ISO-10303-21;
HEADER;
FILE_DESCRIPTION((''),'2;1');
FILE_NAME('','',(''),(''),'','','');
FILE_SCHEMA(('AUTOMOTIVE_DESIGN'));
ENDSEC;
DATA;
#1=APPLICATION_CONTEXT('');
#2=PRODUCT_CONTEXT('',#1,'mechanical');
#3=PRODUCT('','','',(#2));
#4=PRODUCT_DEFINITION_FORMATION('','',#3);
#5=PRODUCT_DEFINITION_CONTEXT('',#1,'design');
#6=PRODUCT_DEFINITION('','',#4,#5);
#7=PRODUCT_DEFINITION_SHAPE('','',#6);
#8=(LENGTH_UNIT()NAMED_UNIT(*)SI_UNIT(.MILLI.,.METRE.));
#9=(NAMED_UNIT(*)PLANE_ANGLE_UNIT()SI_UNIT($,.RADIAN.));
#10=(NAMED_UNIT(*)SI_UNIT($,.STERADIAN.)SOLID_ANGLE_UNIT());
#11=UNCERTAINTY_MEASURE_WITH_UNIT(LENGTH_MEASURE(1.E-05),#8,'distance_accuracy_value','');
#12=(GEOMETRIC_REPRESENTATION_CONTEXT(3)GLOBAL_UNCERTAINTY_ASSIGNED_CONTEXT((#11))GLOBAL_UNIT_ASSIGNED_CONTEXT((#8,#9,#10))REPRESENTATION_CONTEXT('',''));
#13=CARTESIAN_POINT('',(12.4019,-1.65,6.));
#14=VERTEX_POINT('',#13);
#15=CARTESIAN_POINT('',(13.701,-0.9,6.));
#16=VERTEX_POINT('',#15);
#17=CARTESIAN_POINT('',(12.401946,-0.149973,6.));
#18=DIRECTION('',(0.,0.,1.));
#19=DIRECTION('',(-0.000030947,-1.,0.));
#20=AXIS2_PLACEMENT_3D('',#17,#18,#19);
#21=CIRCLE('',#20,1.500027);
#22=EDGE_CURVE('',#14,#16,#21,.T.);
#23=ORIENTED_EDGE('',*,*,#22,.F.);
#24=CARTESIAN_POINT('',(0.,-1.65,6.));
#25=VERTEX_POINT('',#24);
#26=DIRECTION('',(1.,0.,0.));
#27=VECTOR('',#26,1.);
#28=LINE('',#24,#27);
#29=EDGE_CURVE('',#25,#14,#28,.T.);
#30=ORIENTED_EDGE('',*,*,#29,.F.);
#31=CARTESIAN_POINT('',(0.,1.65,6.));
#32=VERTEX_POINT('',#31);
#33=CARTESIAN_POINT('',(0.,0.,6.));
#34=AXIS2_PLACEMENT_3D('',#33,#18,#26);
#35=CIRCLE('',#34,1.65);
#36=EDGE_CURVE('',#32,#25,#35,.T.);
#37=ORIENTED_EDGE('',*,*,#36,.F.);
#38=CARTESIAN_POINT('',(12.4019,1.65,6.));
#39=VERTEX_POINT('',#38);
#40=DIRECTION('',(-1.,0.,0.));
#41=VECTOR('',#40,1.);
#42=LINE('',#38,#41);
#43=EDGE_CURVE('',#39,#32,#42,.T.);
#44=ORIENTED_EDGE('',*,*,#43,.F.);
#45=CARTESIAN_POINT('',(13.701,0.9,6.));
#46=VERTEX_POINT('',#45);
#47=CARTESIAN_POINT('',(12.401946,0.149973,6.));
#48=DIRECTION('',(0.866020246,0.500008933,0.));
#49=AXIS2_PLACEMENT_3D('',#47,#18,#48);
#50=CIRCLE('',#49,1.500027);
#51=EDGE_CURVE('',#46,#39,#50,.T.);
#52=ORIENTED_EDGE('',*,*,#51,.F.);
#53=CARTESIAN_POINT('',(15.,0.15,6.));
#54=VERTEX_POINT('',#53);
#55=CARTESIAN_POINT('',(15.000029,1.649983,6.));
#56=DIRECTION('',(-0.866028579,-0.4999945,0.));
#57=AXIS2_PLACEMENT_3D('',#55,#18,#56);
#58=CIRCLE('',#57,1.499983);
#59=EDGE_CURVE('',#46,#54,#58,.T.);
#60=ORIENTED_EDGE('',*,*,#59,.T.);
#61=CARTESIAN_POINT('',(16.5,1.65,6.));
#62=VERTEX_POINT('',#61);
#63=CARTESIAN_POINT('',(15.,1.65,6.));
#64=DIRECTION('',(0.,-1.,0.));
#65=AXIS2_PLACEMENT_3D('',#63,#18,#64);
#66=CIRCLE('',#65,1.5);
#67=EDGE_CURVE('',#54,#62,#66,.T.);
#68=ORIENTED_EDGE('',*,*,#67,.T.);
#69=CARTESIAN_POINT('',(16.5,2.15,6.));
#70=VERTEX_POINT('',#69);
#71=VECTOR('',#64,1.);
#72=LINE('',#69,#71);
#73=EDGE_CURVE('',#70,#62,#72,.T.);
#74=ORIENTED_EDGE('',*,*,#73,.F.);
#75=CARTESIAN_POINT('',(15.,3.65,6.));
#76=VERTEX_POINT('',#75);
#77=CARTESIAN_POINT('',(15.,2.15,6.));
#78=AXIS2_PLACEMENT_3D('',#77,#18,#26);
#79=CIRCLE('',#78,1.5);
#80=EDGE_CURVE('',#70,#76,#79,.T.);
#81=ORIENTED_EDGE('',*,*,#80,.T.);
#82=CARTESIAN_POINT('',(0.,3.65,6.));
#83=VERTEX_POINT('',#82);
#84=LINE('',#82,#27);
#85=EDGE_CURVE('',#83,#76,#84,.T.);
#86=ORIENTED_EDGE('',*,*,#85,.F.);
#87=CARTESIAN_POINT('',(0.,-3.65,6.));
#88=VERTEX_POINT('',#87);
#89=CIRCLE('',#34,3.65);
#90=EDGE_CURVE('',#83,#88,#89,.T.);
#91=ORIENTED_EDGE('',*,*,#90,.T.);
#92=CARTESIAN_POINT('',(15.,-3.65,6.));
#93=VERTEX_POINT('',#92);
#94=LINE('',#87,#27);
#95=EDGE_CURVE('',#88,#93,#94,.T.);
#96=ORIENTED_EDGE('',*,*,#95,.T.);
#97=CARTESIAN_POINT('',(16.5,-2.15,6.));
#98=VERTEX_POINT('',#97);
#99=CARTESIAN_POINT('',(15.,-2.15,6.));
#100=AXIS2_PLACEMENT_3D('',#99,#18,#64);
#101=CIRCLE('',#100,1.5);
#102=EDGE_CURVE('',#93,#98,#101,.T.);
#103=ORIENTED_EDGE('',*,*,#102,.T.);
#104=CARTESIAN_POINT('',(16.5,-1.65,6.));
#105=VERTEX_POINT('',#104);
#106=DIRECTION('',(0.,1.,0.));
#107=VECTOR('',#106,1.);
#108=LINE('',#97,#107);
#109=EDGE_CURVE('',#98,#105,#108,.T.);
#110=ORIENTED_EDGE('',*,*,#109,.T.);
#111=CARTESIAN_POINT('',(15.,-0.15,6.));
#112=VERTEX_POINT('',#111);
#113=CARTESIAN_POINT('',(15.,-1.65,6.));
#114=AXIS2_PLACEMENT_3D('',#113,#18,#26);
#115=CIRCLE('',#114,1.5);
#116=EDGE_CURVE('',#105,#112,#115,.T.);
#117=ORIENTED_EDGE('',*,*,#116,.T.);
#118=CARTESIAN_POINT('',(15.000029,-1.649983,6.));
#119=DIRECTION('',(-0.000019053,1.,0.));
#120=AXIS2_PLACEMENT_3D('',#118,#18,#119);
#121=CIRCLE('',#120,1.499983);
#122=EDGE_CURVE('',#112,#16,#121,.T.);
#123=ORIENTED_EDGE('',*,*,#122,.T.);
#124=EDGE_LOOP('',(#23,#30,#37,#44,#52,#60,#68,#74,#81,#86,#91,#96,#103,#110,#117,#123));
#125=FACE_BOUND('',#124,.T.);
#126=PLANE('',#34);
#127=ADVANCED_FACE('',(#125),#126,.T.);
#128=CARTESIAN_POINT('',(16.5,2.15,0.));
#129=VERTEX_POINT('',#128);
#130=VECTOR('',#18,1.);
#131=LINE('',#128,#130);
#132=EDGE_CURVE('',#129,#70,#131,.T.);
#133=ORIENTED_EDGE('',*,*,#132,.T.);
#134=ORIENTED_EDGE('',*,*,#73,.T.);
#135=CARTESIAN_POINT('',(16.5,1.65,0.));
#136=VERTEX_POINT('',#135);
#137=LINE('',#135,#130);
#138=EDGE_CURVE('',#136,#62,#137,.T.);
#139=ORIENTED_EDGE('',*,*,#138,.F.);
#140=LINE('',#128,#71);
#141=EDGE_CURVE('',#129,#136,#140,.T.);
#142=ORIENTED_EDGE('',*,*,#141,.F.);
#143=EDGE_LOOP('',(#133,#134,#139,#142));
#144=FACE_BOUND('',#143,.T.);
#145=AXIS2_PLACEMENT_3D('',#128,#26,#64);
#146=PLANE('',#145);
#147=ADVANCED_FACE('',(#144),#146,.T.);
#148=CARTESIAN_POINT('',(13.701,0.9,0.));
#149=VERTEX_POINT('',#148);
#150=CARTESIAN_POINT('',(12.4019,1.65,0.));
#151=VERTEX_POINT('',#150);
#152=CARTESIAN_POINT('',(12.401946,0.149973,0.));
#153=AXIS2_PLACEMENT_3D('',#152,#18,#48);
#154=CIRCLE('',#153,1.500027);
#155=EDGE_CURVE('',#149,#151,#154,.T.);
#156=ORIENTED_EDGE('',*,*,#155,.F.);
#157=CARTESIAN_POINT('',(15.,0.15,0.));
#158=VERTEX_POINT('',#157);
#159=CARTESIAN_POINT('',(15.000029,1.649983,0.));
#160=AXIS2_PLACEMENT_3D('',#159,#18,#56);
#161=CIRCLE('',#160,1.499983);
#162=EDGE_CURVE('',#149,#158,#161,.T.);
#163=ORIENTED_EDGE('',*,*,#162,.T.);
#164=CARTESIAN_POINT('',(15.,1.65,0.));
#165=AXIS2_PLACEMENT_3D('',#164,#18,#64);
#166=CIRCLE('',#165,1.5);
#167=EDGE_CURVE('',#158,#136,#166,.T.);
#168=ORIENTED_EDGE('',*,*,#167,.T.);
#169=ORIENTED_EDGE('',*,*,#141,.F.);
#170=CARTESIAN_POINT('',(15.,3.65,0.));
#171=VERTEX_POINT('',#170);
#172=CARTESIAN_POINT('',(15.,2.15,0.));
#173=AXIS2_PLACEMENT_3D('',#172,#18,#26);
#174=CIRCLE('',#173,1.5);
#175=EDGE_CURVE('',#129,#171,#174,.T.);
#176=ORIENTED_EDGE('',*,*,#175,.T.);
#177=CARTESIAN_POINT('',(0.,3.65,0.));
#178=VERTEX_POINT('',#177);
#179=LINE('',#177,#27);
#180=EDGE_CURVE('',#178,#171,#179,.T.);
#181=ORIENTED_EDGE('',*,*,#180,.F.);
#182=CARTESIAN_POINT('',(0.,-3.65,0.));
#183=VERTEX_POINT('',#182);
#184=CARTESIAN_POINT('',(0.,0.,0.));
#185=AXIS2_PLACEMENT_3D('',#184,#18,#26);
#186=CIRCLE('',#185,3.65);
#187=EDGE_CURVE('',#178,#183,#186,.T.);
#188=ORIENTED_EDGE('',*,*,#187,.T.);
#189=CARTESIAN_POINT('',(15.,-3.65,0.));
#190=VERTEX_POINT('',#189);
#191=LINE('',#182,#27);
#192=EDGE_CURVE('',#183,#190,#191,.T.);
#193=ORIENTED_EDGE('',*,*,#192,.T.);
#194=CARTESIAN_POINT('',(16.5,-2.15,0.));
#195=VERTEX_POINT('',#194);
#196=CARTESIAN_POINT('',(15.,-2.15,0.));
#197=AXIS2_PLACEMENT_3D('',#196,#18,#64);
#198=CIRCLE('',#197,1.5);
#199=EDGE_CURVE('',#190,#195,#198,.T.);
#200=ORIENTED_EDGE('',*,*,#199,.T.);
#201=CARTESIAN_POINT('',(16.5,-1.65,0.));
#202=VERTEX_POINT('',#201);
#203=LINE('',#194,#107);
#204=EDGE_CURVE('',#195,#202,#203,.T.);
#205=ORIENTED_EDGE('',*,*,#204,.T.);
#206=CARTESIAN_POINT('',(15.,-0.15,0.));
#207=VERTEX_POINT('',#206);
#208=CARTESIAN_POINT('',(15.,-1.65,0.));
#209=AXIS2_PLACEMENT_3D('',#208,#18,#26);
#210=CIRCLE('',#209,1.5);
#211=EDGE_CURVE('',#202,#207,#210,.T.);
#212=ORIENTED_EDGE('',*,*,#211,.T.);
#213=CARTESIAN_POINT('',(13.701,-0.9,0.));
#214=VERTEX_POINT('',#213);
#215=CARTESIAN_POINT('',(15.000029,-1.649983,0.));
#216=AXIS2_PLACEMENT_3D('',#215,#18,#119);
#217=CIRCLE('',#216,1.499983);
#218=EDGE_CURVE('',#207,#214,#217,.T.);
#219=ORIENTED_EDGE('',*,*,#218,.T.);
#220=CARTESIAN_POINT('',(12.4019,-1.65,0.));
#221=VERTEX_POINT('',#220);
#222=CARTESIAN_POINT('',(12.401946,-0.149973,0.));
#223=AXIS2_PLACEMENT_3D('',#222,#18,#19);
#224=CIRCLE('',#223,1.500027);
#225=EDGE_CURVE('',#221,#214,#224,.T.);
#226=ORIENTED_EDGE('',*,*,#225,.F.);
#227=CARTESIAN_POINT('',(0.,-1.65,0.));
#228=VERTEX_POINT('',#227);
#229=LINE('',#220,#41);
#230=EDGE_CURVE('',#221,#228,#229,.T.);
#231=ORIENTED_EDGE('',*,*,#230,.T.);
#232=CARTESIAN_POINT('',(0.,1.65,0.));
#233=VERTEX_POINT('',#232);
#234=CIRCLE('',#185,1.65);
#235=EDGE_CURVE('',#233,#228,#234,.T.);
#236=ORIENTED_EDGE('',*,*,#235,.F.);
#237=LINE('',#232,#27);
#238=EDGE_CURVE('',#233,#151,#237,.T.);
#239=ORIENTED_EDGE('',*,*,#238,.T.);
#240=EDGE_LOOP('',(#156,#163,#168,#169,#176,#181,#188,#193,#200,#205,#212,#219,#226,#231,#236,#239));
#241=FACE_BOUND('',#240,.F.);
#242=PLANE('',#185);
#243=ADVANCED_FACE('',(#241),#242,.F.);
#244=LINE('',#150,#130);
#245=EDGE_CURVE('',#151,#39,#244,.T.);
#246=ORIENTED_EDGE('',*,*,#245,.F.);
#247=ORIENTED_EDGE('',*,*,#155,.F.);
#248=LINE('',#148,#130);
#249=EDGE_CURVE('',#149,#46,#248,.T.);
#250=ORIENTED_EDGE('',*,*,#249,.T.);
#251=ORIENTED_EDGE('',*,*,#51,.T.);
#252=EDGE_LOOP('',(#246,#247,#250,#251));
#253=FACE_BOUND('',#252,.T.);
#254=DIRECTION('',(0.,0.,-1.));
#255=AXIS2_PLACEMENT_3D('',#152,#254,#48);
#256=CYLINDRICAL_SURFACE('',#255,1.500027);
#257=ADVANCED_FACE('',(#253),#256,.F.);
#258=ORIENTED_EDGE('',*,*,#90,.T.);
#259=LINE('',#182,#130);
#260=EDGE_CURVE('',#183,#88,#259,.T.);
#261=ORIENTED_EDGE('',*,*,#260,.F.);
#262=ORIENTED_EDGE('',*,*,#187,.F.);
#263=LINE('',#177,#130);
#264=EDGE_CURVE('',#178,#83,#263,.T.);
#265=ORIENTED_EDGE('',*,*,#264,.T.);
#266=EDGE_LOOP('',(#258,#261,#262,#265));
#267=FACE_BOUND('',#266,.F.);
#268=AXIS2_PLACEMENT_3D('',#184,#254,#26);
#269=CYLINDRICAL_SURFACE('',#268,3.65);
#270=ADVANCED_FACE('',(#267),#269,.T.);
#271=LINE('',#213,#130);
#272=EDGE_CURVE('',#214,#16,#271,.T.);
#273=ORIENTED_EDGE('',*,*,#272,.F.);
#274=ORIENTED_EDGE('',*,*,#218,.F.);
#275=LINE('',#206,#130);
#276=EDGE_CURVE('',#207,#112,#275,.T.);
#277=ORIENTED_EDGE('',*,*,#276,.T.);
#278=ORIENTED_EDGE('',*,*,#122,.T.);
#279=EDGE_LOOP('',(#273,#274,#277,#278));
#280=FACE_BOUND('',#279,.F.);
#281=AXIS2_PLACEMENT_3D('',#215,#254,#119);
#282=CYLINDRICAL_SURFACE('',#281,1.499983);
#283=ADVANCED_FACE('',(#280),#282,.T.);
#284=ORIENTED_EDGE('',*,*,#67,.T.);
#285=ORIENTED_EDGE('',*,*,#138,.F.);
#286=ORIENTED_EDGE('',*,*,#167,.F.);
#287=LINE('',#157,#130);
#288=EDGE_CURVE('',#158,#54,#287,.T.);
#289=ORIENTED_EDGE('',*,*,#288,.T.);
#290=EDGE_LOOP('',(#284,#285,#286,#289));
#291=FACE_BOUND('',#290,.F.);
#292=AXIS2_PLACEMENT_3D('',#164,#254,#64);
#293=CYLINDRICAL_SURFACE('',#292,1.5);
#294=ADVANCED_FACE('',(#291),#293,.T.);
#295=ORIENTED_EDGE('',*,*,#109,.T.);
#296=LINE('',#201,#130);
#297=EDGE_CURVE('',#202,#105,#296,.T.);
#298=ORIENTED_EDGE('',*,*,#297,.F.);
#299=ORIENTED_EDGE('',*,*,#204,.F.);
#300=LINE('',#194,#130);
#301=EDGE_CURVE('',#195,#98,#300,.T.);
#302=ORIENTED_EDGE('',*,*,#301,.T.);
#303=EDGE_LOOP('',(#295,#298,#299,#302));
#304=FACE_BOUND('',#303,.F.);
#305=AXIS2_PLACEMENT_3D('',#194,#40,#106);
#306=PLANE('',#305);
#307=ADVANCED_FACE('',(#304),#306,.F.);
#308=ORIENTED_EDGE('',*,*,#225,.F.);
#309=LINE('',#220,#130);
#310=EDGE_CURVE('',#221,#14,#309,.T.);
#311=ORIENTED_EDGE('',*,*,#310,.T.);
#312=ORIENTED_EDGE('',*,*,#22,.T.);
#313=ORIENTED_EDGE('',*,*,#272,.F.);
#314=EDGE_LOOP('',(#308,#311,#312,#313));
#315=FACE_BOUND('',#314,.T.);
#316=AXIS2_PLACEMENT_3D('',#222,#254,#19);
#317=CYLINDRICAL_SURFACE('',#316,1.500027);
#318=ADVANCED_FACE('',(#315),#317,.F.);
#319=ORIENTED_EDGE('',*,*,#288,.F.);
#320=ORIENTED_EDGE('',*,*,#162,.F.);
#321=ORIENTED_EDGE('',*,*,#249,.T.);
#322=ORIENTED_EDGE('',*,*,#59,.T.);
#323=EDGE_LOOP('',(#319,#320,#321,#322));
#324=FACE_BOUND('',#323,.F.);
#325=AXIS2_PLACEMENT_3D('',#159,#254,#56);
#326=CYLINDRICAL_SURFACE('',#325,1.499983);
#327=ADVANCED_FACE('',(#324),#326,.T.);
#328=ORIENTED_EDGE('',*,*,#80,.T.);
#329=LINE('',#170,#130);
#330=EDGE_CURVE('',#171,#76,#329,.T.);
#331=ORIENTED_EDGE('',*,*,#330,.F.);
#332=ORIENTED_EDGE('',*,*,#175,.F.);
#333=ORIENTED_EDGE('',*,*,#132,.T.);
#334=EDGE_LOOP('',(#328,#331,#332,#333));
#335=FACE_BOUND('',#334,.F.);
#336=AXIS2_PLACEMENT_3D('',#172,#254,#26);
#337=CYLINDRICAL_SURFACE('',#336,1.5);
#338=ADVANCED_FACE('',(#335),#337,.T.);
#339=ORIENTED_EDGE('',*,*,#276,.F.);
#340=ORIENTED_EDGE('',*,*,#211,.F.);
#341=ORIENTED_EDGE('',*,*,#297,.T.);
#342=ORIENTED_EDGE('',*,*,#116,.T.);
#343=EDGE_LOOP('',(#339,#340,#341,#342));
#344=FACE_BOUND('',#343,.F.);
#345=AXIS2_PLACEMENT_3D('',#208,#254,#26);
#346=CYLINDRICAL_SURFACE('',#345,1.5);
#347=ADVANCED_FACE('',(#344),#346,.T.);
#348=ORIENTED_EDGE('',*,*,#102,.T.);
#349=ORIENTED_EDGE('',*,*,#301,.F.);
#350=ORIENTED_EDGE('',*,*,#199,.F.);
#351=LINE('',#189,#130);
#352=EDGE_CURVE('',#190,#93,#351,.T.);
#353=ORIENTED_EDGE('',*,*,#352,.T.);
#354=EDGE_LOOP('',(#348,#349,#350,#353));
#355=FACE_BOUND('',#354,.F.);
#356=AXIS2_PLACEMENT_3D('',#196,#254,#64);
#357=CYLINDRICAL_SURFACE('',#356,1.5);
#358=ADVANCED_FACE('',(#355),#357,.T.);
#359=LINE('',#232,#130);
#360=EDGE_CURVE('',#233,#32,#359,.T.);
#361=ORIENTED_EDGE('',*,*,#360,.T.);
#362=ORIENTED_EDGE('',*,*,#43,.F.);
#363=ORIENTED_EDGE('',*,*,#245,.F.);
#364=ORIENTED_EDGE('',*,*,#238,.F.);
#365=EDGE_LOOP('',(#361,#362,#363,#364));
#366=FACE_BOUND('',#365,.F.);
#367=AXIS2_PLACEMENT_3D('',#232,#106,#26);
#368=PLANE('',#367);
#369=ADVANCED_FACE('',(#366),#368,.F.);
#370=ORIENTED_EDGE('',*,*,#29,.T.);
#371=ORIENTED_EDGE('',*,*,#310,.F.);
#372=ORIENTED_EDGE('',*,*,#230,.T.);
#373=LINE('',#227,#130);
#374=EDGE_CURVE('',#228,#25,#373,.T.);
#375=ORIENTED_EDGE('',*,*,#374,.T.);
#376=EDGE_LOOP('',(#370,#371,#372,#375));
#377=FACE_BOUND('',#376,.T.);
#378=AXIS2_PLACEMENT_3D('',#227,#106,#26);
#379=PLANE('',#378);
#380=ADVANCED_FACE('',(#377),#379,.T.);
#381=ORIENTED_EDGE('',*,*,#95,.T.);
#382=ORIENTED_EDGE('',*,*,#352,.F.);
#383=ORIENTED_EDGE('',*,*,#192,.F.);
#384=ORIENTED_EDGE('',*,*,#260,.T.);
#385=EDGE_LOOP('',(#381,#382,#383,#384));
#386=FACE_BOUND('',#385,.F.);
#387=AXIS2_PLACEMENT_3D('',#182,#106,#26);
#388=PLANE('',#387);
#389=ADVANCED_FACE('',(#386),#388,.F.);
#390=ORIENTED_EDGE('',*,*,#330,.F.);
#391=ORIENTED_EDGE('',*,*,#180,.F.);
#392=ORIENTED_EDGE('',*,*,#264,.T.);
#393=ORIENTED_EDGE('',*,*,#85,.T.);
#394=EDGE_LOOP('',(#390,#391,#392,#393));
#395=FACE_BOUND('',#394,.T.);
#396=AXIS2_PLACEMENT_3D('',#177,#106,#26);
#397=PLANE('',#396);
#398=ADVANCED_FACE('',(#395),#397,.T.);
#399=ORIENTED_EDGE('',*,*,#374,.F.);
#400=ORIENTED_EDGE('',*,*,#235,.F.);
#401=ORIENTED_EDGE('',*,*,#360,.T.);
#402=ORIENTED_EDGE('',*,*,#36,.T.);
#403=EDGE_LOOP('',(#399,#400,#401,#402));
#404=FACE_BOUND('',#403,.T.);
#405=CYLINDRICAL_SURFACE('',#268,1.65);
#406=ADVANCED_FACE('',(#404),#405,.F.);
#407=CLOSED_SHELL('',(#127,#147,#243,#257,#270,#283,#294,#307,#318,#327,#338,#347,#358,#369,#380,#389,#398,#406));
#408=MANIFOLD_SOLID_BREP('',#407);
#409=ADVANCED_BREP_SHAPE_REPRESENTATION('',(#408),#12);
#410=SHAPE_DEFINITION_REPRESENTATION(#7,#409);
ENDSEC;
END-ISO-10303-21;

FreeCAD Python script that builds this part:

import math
import FreeCAD as App
import Part
import Sketcher

V = App.Vector

doc = App.newDocument("Part")
params = doc.addObject("Spreadsheet::Sheet", "Params")
for row, (alias, value) in enumerate([
    ("sketch1_radius", "1.5 mm"),
    ("sketch1_radius2", "1.65 mm"),
    ("sketch1_radius3", "3.65 mm"),
    ("pad1_length", "6 mm"),
], start=1):
    params.set(f"A{row}", alias)
    params.set(f"B{row}", "=" + value)
    params.setAlias(f"B{row}", alias)

body = doc.addObject("PartDesign::Body", "Body")

sketch1 = body.newObject("Sketcher::SketchObject", "Sketch")
sketch1.AttachmentSupport = (doc.getObject("XY_Plane"), [""])
sketch1.MapMode = "FlatFace"
sketch1.addGeometry(Part.ArcOfCircle(Part.Circle(V(0, 0, 0), V(0, 0, 1), 1.6), math.radians(90), math.radians(270)), False)
sketch1.addGeometry(Part.LineSegment(V(0, 1.6, 0), V(12.4, 1.6, 0)), False)
sketch1.addGeometry(Part.ArcOfCircle(Part.Circle(V(12.4, 0.1, 0), V(0, 0, 1), 1.5), math.radians(30), math.radians(90)), False)
sketch1.addGeometry(Part.ArcOfCircle(Part.Circle(V(15, 1.6, 0), V(0, 0, 1), 1.5), math.radians(-150), math.radians(-90)), False)
sketch1.addGeometry(Part.ArcOfCircle(Part.Circle(V(15, 1.6, 0), V(0, 0, 1), 1.5), math.radians(-90), math.radians(0)), False)
sketch1.addGeometry(Part.LineSegment(V(16.5, 1.6, 0), V(16.5, 2.1, 0)), False)
sketch1.addGeometry(Part.ArcOfCircle(Part.Circle(V(15, 2.1, 0), V(0, 0, 1), 1.5), math.radians(0), math.radians(90)), False)
sketch1.addGeometry(Part.LineSegment(V(15, 3.6, 0), V(0, 3.6, 0)), False)
sketch1.addGeometry(Part.ArcOfCircle(Part.Circle(V(0, 0, 0), V(0, 0, 1), 3.6), math.radians(90), math.radians(270)), False)
sketch1.addGeometry(Part.LineSegment(V(0, -3.6, 0), V(15, -3.6, 0)), False)
sketch1.addGeometry(Part.ArcOfCircle(Part.Circle(V(15, -2.1, 0), V(0, 0, 1), 1.5), math.radians(-90), math.radians(0)), False)
sketch1.addGeometry(Part.LineSegment(V(16.5, -2.1, 0), V(16.5, -1.6, 0)), False)
sketch1.addGeometry(Part.ArcOfCircle(Part.Circle(V(15, -1.6, 0), V(0, 0, 1), 1.5), math.radians(0), math.radians(90)), False)
sketch1.addGeometry(Part.ArcOfCircle(Part.Circle(V(15, -1.6, 0), V(0, 0, 1), 1.5), math.radians(90), math.radians(150)), False)
sketch1.addGeometry(Part.ArcOfCircle(Part.Circle(V(12.4, -0.1, 0), V(0, 0, 1), 1.5), math.radians(-90), math.radians(-30)), False)
sketch1.addGeometry(Part.LineSegment(V(12.4, -1.6, 0), V(0, -1.6, 0)), False)
sketch1.addConstraint(Sketcher.Constraint("Tangent", 0, 1, 1, 1))
sketch1.addConstraint(Sketcher.Constraint("Tangent", 1, 2, 2, 2))
sketch1.addConstraint(Sketcher.Constraint("Tangent", 2, 1, 3, 1))
sketch1.addConstraint(Sketcher.Constraint("Tangent", 3, 2, 4, 1))
sketch1.addConstraint(Sketcher.Constraint("Tangent", 4, 2, 5, 1))
sketch1.addConstraint(Sketcher.Constraint("Tangent", 5, 2, 6, 1))
sketch1.addConstraint(Sketcher.Constraint("Tangent", 6, 2, 7, 1))
sketch1.addConstraint(Sketcher.Constraint("Tangent", 7, 2, 8, 1))
sketch1.addConstraint(Sketcher.Constraint("Tangent", 8, 2, 9, 1))
sketch1.addConstraint(Sketcher.Constraint("Tangent", 9, 2, 10, 1))
sketch1.addConstraint(Sketcher.Constraint("Tangent", 10, 2, 11, 1))
sketch1.addConstraint(Sketcher.Constraint("Tangent", 11, 2, 12, 1))
sketch1.addConstraint(Sketcher.Constraint("Tangent", 12, 2, 13, 1))
sketch1.addConstraint(Sketcher.Constraint("Tangent", 13, 2, 14, 2))
sketch1.addConstraint(Sketcher.Constraint("Tangent", 14, 1, 15, 1))
sketch1.addConstraint(Sketcher.Constraint("Tangent", 15, 2, 0, 2))
sketch1.addConstraint(Sketcher.Constraint("Horizontal", 1))
sketch1.addConstraint(Sketcher.Constraint("Vertical", 5))
sketch1.addConstraint(Sketcher.Constraint("Horizontal", 7))
sketch1.addConstraint(Sketcher.Constraint("Horizontal", 9))
sketch1.addConstraint(Sketcher.Constraint("Vertical", 11))
sketch1.addConstraint(Sketcher.Constraint("Horizontal", 15))
sketch1.addConstraint(Sketcher.Constraint("Coincident", 0, 3, -1, 1))
sketch1.addConstraint(Sketcher.Constraint("Coincident", 8, 3, -1, 1))
sketch1.addConstraint(Sketcher.Constraint("Equal", 2, 3))
sketch1.addConstraint(Sketcher.Constraint("Equal", 3, 4))
sketch1.addConstraint(Sketcher.Constraint("Equal", 4, 6))
sketch1.addConstraint(Sketcher.Constraint("Equal", 6, 10))
sketch1.addConstraint(Sketcher.Constraint("Equal", 10, 12))
sketch1.addConstraint(Sketcher.Constraint("Equal", 12, 13))
sketch1.addConstraint(Sketcher.Constraint("Equal", 13, 14))
sketch1.addConstraint(Sketcher.Constraint("Symmetric", 3, 3, 12, 3, -1))
sketch1.addConstraint(Sketcher.Constraint("Horizontal", 4, 3, 0, 1))
sketch1.addConstraint(Sketcher.Constraint("Vertical", 13, 3, 3, 2))
sketch1.addConstraint(Sketcher.Constraint("Vertical", 9, 2, 12, 2))
sketch1.addConstraint(Sketcher.Constraint("Radius", 2, 1.5))
sketch1.addConstraint(Sketcher.Constraint("Radius", 0, 1.65))
sketch1.addConstraint(Sketcher.Constraint("Radius", 8, 3.65))
sketch1.addConstraint(Sketcher.Constraint("DistanceX", -1, 1, 4, 2, 16.5))
sketch1.setExpression("Constraints[35]", "Params.sketch1_radius")
sketch1.setExpression("Constraints[36]", "Params.sketch1_radius2")
sketch1.setExpression("Constraints[37]", "Params.sketch1_radius3")
pad1 = body.newObject("PartDesign::Pad", "Pad")
pad1.Profile = sketch1
pad1.setExpression("Length", "Params.pad1_length")

doc.recompute()
